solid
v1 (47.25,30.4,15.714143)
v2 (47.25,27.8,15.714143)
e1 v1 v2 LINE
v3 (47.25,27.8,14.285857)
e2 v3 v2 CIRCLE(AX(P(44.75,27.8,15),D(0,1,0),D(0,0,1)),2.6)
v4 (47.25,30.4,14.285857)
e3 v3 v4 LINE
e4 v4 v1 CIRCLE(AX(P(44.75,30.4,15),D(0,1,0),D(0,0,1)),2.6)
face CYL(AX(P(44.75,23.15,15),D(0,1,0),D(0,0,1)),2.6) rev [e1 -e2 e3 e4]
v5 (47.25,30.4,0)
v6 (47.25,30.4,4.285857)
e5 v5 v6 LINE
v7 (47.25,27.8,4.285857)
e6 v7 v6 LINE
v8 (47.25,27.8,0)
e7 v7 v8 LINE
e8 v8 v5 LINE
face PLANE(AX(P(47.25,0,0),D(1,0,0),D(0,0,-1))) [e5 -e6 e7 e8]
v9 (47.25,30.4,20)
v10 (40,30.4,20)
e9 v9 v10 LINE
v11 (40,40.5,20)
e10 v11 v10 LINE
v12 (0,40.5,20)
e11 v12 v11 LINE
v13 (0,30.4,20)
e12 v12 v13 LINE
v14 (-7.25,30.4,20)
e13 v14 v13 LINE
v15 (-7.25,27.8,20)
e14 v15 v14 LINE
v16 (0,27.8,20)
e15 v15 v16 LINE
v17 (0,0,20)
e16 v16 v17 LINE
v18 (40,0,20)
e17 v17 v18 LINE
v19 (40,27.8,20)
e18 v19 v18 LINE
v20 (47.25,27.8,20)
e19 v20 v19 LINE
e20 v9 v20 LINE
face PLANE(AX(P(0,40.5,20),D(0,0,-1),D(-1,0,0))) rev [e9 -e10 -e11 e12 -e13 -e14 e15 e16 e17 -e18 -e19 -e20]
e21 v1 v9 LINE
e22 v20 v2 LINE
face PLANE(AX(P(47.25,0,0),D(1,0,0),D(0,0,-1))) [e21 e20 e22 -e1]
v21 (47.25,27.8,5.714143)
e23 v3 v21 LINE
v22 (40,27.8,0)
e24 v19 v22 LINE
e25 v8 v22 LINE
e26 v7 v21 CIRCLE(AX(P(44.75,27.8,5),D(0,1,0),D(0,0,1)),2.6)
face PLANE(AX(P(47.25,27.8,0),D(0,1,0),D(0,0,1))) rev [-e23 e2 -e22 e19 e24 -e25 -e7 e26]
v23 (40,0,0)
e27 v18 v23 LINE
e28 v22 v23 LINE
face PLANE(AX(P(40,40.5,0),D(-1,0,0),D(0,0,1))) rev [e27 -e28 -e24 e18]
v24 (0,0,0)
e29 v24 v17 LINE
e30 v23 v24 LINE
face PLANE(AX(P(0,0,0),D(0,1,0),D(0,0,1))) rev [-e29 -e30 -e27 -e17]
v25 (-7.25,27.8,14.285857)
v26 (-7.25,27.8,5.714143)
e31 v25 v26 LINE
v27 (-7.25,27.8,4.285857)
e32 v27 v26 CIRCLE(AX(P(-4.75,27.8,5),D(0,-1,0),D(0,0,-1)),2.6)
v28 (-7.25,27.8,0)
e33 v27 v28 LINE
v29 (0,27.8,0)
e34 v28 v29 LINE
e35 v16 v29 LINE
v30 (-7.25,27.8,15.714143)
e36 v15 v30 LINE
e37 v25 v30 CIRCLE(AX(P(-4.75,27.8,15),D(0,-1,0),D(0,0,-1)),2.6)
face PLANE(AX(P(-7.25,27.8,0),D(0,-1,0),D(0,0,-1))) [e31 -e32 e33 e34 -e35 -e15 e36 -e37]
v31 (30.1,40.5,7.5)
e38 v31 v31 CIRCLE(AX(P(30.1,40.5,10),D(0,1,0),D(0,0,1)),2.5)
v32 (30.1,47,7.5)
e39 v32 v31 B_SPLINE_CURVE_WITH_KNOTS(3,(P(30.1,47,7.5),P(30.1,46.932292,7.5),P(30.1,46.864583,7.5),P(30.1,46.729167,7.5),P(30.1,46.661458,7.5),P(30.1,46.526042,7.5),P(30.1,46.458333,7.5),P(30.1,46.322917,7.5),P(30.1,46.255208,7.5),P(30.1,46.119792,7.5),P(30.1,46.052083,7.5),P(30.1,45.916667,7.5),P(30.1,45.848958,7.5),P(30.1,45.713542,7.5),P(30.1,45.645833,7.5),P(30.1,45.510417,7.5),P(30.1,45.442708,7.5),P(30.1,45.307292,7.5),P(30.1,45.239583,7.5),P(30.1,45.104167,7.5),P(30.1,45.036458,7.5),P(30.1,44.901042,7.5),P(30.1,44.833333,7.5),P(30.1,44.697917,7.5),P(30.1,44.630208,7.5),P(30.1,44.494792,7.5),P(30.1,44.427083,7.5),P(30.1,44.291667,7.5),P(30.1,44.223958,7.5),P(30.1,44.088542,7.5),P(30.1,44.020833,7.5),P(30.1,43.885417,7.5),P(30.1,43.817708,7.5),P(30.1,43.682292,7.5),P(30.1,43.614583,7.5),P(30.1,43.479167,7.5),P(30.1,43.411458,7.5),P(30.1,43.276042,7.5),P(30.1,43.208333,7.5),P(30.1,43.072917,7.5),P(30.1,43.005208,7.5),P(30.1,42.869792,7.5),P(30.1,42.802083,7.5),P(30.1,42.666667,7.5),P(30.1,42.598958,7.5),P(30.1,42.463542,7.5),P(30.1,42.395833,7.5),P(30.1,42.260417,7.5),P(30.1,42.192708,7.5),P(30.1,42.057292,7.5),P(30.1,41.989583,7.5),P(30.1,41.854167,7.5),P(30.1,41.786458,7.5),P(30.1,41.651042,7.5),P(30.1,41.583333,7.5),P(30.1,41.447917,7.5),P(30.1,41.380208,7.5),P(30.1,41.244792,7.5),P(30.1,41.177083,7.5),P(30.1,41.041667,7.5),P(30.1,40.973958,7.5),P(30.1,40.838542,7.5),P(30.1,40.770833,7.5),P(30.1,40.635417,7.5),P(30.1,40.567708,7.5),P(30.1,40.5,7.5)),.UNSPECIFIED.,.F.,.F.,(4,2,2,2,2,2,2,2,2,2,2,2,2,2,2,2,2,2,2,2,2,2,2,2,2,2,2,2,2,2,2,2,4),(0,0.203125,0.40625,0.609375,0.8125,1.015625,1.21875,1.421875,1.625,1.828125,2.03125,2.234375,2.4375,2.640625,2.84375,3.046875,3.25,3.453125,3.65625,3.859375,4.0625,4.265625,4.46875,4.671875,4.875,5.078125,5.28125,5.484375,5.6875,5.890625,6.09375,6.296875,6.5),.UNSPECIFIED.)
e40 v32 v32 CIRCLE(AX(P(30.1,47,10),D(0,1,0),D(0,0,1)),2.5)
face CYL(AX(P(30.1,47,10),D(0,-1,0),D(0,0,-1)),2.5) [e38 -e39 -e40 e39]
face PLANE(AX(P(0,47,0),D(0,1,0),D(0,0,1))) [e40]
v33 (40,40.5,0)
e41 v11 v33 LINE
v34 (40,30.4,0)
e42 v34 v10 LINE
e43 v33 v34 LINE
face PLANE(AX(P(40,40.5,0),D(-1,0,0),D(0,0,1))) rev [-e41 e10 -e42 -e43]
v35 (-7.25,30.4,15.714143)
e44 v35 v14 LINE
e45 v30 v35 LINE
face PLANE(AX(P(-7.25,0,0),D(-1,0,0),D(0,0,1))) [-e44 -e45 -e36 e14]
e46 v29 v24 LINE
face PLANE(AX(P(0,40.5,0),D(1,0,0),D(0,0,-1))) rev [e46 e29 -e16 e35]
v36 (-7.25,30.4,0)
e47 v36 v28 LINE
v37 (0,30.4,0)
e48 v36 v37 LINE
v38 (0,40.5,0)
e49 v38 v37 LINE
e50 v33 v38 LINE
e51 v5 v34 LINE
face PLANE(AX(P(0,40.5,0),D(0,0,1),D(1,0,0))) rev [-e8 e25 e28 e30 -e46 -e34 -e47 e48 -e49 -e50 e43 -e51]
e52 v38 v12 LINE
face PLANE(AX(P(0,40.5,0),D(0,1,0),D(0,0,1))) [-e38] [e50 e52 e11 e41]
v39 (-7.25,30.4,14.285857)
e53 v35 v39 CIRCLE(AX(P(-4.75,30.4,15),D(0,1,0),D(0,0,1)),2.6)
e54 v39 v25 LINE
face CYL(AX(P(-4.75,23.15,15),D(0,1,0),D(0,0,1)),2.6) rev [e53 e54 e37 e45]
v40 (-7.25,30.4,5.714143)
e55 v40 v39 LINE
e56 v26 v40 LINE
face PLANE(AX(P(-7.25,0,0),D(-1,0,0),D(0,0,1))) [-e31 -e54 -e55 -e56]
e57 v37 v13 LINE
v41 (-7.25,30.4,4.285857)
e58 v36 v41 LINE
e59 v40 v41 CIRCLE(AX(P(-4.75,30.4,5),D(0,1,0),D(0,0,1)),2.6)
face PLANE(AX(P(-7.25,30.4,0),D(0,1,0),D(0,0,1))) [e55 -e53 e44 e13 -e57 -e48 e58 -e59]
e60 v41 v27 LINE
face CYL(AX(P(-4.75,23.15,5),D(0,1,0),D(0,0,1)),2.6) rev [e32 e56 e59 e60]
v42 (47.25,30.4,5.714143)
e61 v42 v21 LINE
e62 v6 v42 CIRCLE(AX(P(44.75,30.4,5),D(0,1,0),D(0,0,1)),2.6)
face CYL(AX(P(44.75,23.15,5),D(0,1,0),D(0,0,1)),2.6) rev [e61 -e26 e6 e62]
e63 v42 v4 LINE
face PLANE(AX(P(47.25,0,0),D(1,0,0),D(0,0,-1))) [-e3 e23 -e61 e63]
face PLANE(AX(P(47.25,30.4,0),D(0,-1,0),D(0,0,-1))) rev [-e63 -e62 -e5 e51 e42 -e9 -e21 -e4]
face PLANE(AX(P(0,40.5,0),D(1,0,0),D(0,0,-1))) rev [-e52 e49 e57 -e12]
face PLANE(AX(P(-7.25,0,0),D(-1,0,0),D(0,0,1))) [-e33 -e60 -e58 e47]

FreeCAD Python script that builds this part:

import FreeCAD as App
import Part
import Sketcher
from FreeCAD import Vector
Q = App.Units.Quantity


def add_polygon(sketch, points):
    """Adds a closed chain of lines whose ends are joined by coincident constraints."""
    first, n = sketch.GeometryCount, len(points)
    for a, b in zip(points, points[1:] + points[:1]):
        sketch.addGeometry(Part.LineSegment(App.Vector(*a, 0), App.Vector(*b, 0)), False)
    for i in range(n):
        sketch.addConstraint(Sketcher.Constraint("Coincident", first + i, 2, first + (i + 1) % n, 1))

doc = App.newDocument("Part")
params = doc.addObject("Spreadsheet::Sheet", "Params")
for row, (alias, value) in enumerate([
    ("sketch1_width", "40 mm"),
    ("sketch1_height", "20 mm"),
    ("pad1_length", "40.5 mm"),
    ("sketch2_diameter", "5 mm"),
    ("pad2_length", "6.5 mm"),
    ("sketch3_height", "20 mm"),
    ("sketch3_width", "2.6 mm"),
    ("pad3_length", "7.25 mm"),
    ("sketch4_height", "20 mm"),
    ("sketch4_width", "2.6 mm"),
    ("pad4_length", "7.25 mm"),
    ("sketch5_diameter", "5.2 mm"),
    ("pocket1_length", "7.25 mm"),
], start=1):
    params.set(f"A{row}", alias)
    params.set(f"B{row}", "=" + value)
    params.setAlias(f"B{row}", alias)

body = doc.addObject("PartDesign::Body", "Body")

sketch1 = body.newObject("Sketcher::SketchObject", "Sketch")
sketch1.AttachmentSupport = (doc.getObject("XZ_Plane"), [""])
sketch1.MapMode = "FlatFace"
add_polygon(sketch1, [(0, 0), (0, 20), (40, 20), (40, 0)])
sketch1.addConstraint([
    Sketcher.Constraint("Vertical", 0),
    Sketcher.Constraint("Horizontal", 1),
    Sketcher.Constraint("Vertical", 2),
    Sketcher.Constraint("Horizontal", 3),
    Sketcher.Constraint("Coincident", 3, 2, -1, 1),
    Sketcher.Constraint("DistanceX", 1, 1, 1, 2, Q("40 mm")),
    Sketcher.Constraint("DistanceY", 0, 1, 0, 2, Q("20 mm")),
])
sketch1.setExpression("Constraints[9]", "Params.sketch1_width")
sketch1.setExpression("Constraints[10]", "Params.sketch1_height")
pad1 = body.newObject("PartDesign::Pad", "Pad")
pad1.Profile = sketch1
pad1.setExpression("Length", "Params.pad1_length")
pad1.Reversed = True

sketch2 = body.newObject("Sketcher::SketchObject", "Sketch001")
sketch2.AttachmentSupport = (doc.getObject("XZ_Plane"), [""])
sketch2.MapMode = "FlatFace"
sketch2.AttachmentOffset = App.Placement(Vector(0, 0, -40.5), App.Rotation())
sketch2.addGeometry(Part.Circle(Vector(30.1, 10, 0), Vector(0, 0, 1), 2.5), False)
sketch2.addConstraint([
    Sketcher.Constraint("Diameter", 0, Q("5 mm")),
    Sketcher.Constraint("DistanceY", -1, 1, 0, 3, Q("10 mm")),
    Sketcher.Constraint("DistanceX", -1, 1, 0, 3, Q("30.1 mm")),
])
sketch2.setExpression("Constraints[0]", "Params.sketch2_diameter")
pad2 = body.newObject("PartDesign::Pad", "Pad001")
pad2.Profile = sketch2
pad2.setExpression("Length", "Params.pad2_length")
pad2.Reversed = True

sketch3 = body.newObject("Sketcher::SketchObject", "Sketch002")
sketch3.AttachmentSupport = (doc.getObject("YZ_Plane"), [""])
sketch3.MapMode = "FlatFace"
add_polygon(sketch3, [(30.4, 0), (27.8, 0), (27.8, 20), (30.4, 20)])
sketch3.addConstraint([
    Sketcher.Constraint("Horizontal", 0),
    Sketcher.Constraint("Vertical", 1),
    Sketcher.Constraint("Horizontal", 2),
    Sketcher.Constraint("Vertical", 3),
    Sketcher.Constraint("PointOnObject", 0, 2, -1),
    Sketcher.Constraint("DistanceY", 1, 1, 1, 2, Q("20 mm")),
    Sketcher.Constraint("DistanceX", 0, 2, 0, 1, Q("2.6 mm")),
    Sketcher.Constraint("DistanceX", -1, 1, 0, 2, Q("27.8 mm")),
])
sketch3.setExpression("Constraints[9]", "Params.sketch3_height")
sketch3.setExpression("Constraints[10]", "Params.sketch3_width")
pad3 = body.newObject("PartDesign::Pad", "Pad002")
pad3.Profile = sketch3
pad3.setExpression("Length", "Params.pad3_length")
pad3.Reversed = True

sketch4 = body.newObject("Sketcher::SketchObject", "Sketch003")
sketch4.AttachmentSupport = (doc.getObject("YZ_Plane"), [""])
sketch4.MapMode = "FlatFace"
sketch4.AttachmentOffset = App.Placement(Vector(0, 0, 40), App.Rotation())
add_polygon(sketch4, [(30.4, 20), (27.8, 20), (27.8, 0), (30.4, 0)])
sketch4.addConstraint([
    Sketcher.Constraint("Horizontal", 0),
    Sketcher.Constraint("Vertical", 1),
    Sketcher.Constraint("Horizontal", 2),
    Sketcher.Constraint("Vertical", 3),
    Sketcher.Constraint("PointOnObject", 1, 2, -1),
    Sketcher.Constraint("DistanceY", 1, 2, 1, 1, Q("20 mm")),
    Sketcher.Constraint("DistanceX", 0, 2, 0, 1, Q("2.6 mm")),
    Sketcher.Constraint("DistanceX", -1, 1, 0, 2, Q("27.8 mm")),
])
sketch4.setExpression("Constraints[9]", "Params.sketch4_height")
sketch4.setExpression("Constraints[10]", "Params.sketch4_width")
pad4 = body.newObject("PartDesign::Pad", "Pad003")
pad4.Profile = sketch4
pad4.setExpression("Length", "Params.pad4_length")

sketch5 = body.newObject("Sketcher::SketchObject", "Sketch004")
sketch5.AttachmentSupport = (doc.getObject("XZ_Plane"), [""])
sketch5.MapMode = "FlatFace"
sketch5.AttachmentOffset = App.Placement(Vector(0, 0, -30.4), App.Rotation())
sketch5.addGeometry([
    Part.Circle(Vector(44.75, 5, 0), Vector(0, 0, 1), 2.6),
    Part.Circle(Vector(44.75, 15, 0), Vector(0, 0, 1), 2.6),
    Part.Circle(Vector(-4.75, 15, 0), Vector(0, 0, 1), 2.6),
    Part.Circle(Vector(-4.75, 5, 0), Vector(0, 0, 1), 2.6),
], False)
sketch5.addConstraint([
    Sketcher.Constraint("Equal", 0, 1),
    Sketcher.Constraint("Equal", 1, 2),
    Sketcher.Constraint("Equal", 2, 3),
    Sketcher.Constraint("Horizontal", 1, 3, 2, 3),
    Sketcher.Constraint("Horizontal", 0, 3, 3, 3),
    Sketcher.Constraint("Vertical", 0, 3, 1, 3),
    Sketcher.Constraint("Vertical", 2, 3, 3, 3),
    Sketcher.Constraint("Diameter", 0, Q("5.2 mm")),
    Sketcher.Constraint("DistanceY", -1, 1, 0, 3, Q("5 mm")),
    Sketcher.Constraint("DistanceY", -1, 1, 1, 3, Q("15 mm")),
    Sketcher.Constraint("DistanceX", 2, 3, 1, 3, Q("49.5 mm")),
    Sketcher.Constraint("DistanceX", -1, 1, 0, 3, Q("44.75 mm")),
])
sketch5.setExpression("Constraints[7]", "Params.sketch5_diameter")
pocket1 = body.newObject("PartDesign::Pocket", "Pocket")
pocket1.Profile = sketch5
pocket1.setExpression("Length", "Params.pocket1_length")
pocket1.Reversed = True

doc.recompute()
